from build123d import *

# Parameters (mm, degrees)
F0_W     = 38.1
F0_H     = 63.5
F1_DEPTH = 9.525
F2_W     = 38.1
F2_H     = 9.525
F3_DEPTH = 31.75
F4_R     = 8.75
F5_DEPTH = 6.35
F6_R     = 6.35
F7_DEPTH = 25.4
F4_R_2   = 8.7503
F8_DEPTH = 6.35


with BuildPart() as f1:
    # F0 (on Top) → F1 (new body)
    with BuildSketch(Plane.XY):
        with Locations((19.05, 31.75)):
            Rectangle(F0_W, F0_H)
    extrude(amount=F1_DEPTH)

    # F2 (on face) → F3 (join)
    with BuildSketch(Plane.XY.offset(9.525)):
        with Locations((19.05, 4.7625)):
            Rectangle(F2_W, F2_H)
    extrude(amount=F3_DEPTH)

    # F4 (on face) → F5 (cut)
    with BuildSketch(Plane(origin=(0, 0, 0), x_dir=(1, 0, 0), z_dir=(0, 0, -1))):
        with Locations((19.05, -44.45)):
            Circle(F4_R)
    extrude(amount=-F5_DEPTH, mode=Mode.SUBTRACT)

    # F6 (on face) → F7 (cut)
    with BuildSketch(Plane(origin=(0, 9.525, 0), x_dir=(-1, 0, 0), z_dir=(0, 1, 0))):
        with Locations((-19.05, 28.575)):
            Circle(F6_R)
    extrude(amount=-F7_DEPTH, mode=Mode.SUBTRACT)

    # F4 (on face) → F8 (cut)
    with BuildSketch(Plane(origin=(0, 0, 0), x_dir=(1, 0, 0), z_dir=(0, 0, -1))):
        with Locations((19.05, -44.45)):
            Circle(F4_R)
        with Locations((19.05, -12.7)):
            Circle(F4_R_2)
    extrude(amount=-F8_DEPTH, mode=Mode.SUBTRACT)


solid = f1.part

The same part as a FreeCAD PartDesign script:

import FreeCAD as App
import Part
import Sketcher
Q = App.Units.Quantity


def add_polygon(sketch, points):
    """Adds a closed chain of lines whose ends are joined by coincident constraints."""
    first, n = sketch.GeometryCount, len(points)
    for a, b in zip(points, points[1:] + points[:1]):
        sketch.addGeometry(Part.LineSegment(App.Vector(*a, 0), App.Vector(*b, 0)), False)
    for i in range(n):
        sketch.addConstraint(Sketcher.Constraint("Coincident", first + i, 2, first + (i + 1) % n, 1))

doc = App.newDocument("Part")
body = doc.addObject("PartDesign::Body", "Body")

# Sketch on XY plane
sketch1 = body.newObject("Sketcher::SketchObject", "Sketch")
sketch1.AttachmentSupport = (doc.getObject("XY_Plane"), [""])
sketch1.MapMode = "FlatFace"
add_polygon(sketch1, [(0, 63.5), (0, 0), (38.1, 0), (38.1, 63.5)])  # lines 0-3
sketch1.addConstraint([
    Sketcher.Constraint("Vertical", 0),
    Sketcher.Constraint("Horizontal", 1),
    Sketcher.Constraint("Vertical", 2),
    Sketcher.Constraint("Horizontal", 3),
    Sketcher.Constraint("Coincident", 0, 2, -1, 1),
    Sketcher.Constraint("DistanceX", 1, 1, 1, 2, Q("1.5 in")),
    Sketcher.Constraint("DistanceY", 0, 2, 0, 1, Q("2.5 in")),
])
pad1 = body.newObject("PartDesign::Pad", "Pad")
pad1.Profile = sketch1
pad1.Length = Q("0.375 in")

# Sketch on XY plane
sketch2 = body.newObject("Sketcher::SketchObject", "Sketch001")
sketch2.AttachmentSupport = (doc.getObject("XY_Plane"), [""])
sketch2.MapMode = "FlatFace"
sketch2.AttachmentOffset = App.Placement(App.Vector(0, 0, 0.375 * 25.4), App.Rotation())
add_polygon(sketch2, [(0, 9.525), (0, 0), (38.1, 0), (38.1, 9.525)])  # lines 0-3
sketch2.addConstraint([
    Sketcher.Constraint("Vertical", 0),
    Sketcher.Constraint("Horizontal", 1),
    Sketcher.Constraint("Vertical", 2),
    Sketcher.Constraint("Horizontal", 3),
    Sketcher.Constraint("Coincident", 0, 2, -1, 1),
    Sketcher.Constraint("DistanceX", 1, 1, 1, 2, Q("1.5 in")),
    Sketcher.Constraint("DistanceY", 0, 2, 0, 1, Q("0.375 in")),
])
pad2 = body.newObject("PartDesign::Pad", "Pad001")
pad2.Profile = sketch2
pad2.Length = Q("1.25 in")

# Sketch on XY plane
sketch3 = body.newObject("Sketcher::SketchObject", "Sketch002")
sketch3.AttachmentSupport = (doc.getObject("XY_Plane"), [""])
sketch3.MapMode = "FlatFace"
sketch3.addGeometry(Part.Circle(App.Vector(19.05, 44.45, 0), App.Vector(0, 0, 1), 8.75), False)
sketch3.addConstraint([
    Sketcher.Constraint("Diameter", 0, 17.5),
    Sketcher.Constraint("DistanceX", -1, 1, 0, 3, Q("0.75 in")),
    Sketcher.Constraint("DistanceY", -1, 1, 0, 3, Q("1.75 in")),
])
pocket1 = body.newObject("PartDesign::Pocket", "Pocket")
pocket1.Profile = sketch3
pocket1.Length = Q("0.25 in")
pocket1.Reversed = True

# Sketch on XZ plane
sketch4 = body.newObject("Sketcher::SketchObject", "Sketch003")
sketch4.AttachmentSupport = (doc.getObject("XZ_Plane"), [""])
sketch4.MapMode = "FlatFace"
sketch4.AttachmentOffset = App.Placement(App.Vector(0, 0, -0.375 * 25.4), App.Rotation())
sketch4.addGeometry(Part.Circle(App.Vector(19.05, 28.575, 0), App.Vector(0, 0, 1), 6.35), False)
sketch4.addConstraint([
    Sketcher.Constraint("Diameter", 0, Q("0.5 in")),
    Sketcher.Constraint("DistanceX", -1, 1, 0, 3, Q("0.75 in")),
    Sketcher.Constraint("DistanceY", -1, 1, 0, 3, Q("1.125 in")),
])
pocket2 = body.newObject("PartDesign::Pocket", "Pocket001")
pocket2.Profile = sketch4
pocket2.Length = Q("1 in")
pocket2.Reversed = True

# Sketch on XY plane
sketch5 = body.newObject("Sketcher::SketchObject", "Sketch004")
sketch5.AttachmentSupport = (doc.getObject("XY_Plane"), [""])
sketch5.MapMode = "FlatFace"
sketch5.addGeometry([
    Part.Circle(App.Vector(19.05, 44.45, 0), App.Vector(0, 0, 1), 8.75),
    Part.Circle(App.Vector(19.05, 12.7, 0), App.Vector(0, 0, 1), 8.7503),
], False)
sketch5.addConstraint([
    Sketcher.Constraint("Vertical", 0, 3, 1, 3),
    Sketcher.Constraint("Diameter", 1, Q("0.689 in")),
    Sketcher.Constraint("DistanceY", -1, 1, 1, 3, Q("0.5 in")),
    Sketcher.Constraint("Diameter", 0, 17.5),
    Sketcher.Constraint("DistanceX", -1, 1, 0, 3, Q("0.75 in")),
    Sketcher.Constraint("DistanceY", -1, 1, 0, 3, Q("1.75 in")),
])
pocket3 = body.newObject("PartDesign::Pocket", "Pocket002")
pocket3.Profile = sketch5
pocket3.Length = Q("0.25 in")
pocket3.Reversed = True

doc.recompute()
